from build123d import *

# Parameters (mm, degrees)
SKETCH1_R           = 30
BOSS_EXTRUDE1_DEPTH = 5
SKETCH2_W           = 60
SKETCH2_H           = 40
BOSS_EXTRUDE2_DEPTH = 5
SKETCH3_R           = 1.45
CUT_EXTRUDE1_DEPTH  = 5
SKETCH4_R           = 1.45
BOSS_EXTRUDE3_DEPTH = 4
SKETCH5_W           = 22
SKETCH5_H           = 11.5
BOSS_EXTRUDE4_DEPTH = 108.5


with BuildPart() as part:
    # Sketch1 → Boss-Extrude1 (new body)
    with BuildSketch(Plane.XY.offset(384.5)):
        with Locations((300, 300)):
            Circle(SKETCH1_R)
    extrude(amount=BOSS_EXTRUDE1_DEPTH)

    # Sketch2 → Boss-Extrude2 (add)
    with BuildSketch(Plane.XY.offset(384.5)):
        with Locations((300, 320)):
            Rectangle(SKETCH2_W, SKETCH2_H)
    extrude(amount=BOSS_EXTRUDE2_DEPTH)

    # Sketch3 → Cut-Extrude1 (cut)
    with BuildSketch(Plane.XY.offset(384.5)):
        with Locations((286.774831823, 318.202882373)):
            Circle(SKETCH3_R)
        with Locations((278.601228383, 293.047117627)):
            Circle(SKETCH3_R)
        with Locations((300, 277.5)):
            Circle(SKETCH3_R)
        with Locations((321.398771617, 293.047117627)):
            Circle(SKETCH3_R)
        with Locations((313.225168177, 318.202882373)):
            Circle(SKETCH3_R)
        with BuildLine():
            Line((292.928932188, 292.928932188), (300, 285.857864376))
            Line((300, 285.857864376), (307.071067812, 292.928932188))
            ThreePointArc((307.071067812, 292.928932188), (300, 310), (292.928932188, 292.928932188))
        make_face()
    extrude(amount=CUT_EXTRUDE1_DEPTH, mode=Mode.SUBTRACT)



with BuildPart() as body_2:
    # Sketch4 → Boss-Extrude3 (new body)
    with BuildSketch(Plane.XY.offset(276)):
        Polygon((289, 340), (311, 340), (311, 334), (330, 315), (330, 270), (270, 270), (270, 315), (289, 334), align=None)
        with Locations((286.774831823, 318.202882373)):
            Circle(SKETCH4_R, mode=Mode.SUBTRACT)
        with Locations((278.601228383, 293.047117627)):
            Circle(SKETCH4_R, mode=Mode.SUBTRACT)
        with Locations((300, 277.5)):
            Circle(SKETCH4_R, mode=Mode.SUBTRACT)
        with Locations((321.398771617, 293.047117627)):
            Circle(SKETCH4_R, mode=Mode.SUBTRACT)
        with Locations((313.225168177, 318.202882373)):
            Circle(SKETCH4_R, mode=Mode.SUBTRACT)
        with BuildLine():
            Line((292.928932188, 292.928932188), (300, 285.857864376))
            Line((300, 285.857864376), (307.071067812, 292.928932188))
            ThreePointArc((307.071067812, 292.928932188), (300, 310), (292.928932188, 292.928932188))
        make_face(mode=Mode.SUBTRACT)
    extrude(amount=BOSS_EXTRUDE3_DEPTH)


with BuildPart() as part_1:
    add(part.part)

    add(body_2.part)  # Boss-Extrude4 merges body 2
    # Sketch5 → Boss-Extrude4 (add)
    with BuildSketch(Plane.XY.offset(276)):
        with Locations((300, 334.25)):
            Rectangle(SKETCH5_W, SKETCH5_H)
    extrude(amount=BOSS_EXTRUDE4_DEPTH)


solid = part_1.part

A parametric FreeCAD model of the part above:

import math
import FreeCAD as App
import Part
import Sketcher
Q = App.Units.Quantity

doc = App.newDocument("Part")
body = doc.addObject("PartDesign::Body", "Body")

sketch1 = doc.addObject("Sketcher::SketchObject", "Sketch")
body.addObject(sketch1)
sketch1.AttachmentSupport = (doc.XY_Plane, [""])
sketch1.MapMode = "FlatFace"
sketch1.AttachmentOffset = App.Placement(App.Vector(0, 0, 384.5), App.Rotation())
sketch1.addGeometry(Part.Circle(App.Vector(300, 300, 0), App.Vector(0, 0, 1), 30), False)
sketch1.addConstraint(Sketcher.Constraint("Diameter", 0, Q("60 mm")))
sketch1.addConstraint(Sketcher.Constraint("DistanceX", -1, 1, 0, 3, Q("300 mm")))
sketch1.addConstraint(Sketcher.Constraint("DistanceY", -1, 1, 0, 3, Q("300 mm")))
pad1 = doc.addObject("PartDesign::Pad", "Pad")
body.addObject(pad1)
pad1.Profile = sketch1
pad1.Length = 5

sketch2 = doc.addObject("Sketcher::SketchObject", "Sketch001")
body.addObject(sketch2)
sketch2.AttachmentSupport = (doc.XY_Plane, [""])
sketch2.MapMode = "FlatFace"
sketch2.AttachmentOffset = App.Placement(App.Vector(0, 0, 384.5), App.Rotation())
sketch2.addGeometry(Part.LineSegment(App.Vector(270, 340, 0), App.Vector(270, 300, 0)), False)
sketch2.addGeometry(Part.LineSegment(App.Vector(270, 300, 0), App.Vector(330, 300, 0)), False)
sketch2.addGeometry(Part.LineSegment(App.Vector(330, 300, 0), App.Vector(330, 340, 0)), False)
sketch2.addGeometry(Part.LineSegment(App.Vector(330, 340, 0), App.Vector(270, 340, 0)), False)
sketch2.addConstraint(Sketcher.Constraint("Coincident", 0, 2, 1, 1))
sketch2.addConstraint(Sketcher.Constraint("Coincident", 1, 2, 2, 1))
sketch2.addConstraint(Sketcher.Constraint("Coincident", 2, 2, 3, 1))
sketch2.addConstraint(Sketcher.Constraint("Coincident", 3, 2, 0, 1))
sketch2.addConstraint(Sketcher.Constraint("Vertical", 0))
sketch2.addConstraint(Sketcher.Constraint("Horizontal", 1))
sketch2.addConstraint(Sketcher.Constraint("Vertical", 2))
sketch2.addConstraint(Sketcher.Constraint("Horizontal", 3))
sketch2.addConstraint(Sketcher.Constraint("DistanceX", 1, 1, 1, 2, Q("60 mm")))
sketch2.addConstraint(Sketcher.Constraint("DistanceY", 0, 2, 0, 1, Q("40 mm")))
sketch2.addConstraint(Sketcher.Constraint("DistanceX", -1, 1, 0, 2, Q("270 mm")))
sketch2.addConstraint(Sketcher.Constraint("DistanceY", -1, 1, 0, 2, Q("300 mm")))
pad2 = doc.addObject("PartDesign::Pad", "Pad001")
body.addObject(pad2)
pad2.Profile = sketch2
pad2.Length = 5

sketch3 = doc.addObject("Sketcher::SketchObject", "Sketch002")
body.addObject(sketch3)
sketch3.AttachmentSupport = (doc.XY_Plane, [""])
sketch3.MapMode = "FlatFace"
sketch3.AttachmentOffset = App.Placement(App.Vector(0, 0, 384.5), App.Rotation())
sketch3.addGeometry(Part.Circle(App.Vector(286.8, 318.2, 0), App.Vector(0, 0, 1), 1.4), False)
sketch3.addGeometry(Part.Circle(App.Vector(278.6, 293, 0), App.Vector(0, 0, 1), 1.4), False)
sketch3.addGeometry(Part.Circle(App.Vector(300, 277.5, 0), App.Vector(0, 0, 1), 1.4), False)
sketch3.addGeometry(Part.Circle(App.Vector(321.4, 293, 0), App.Vector(0, 0, 1), 1.4), False)
sketch3.addGeometry(Part.Circle(App.Vector(313.2, 318.2, 0), App.Vector(0, 0, 1), 1.4), False)
sketch3.addGeometry(Part.LineSegment(App.Vector(292.9, 292.9, 0), App.Vector(300, 285.9, 0)), False)
sketch3.addGeometry(Part.LineSegment(App.Vector(300, 285.9, 0), App.Vector(307.1, 292.9, 0)), False)
sketch3.addGeometry(Part.ArcOfCircle(Part.Circle(App.Vector(300, 300, 0), App.Vector(0, 0, 1), 10), math.radians(-45), math.radians(225)), False)
sketch3.addConstraint(Sketcher.Constraint("Coincident", 5, 2, 6, 1))
sketch3.addConstraint(Sketcher.Constraint("Tangent", 6, 2, 7, 1))
sketch3.addConstraint(Sketcher.Constraint("Tangent", 7, 2, 5, 1))
sketch3.addConstraint(Sketcher.Constraint("Equal", 0, 1))
sketch3.addConstraint(Sketcher.Constraint("Equal", 1, 2))
sketch3.addConstraint(Sketcher.Constraint("Equal", 2, 3))
sketch3.addConstraint(Sketcher.Constraint("Equal", 3, 4))
sketch3.addConstraint(Sketcher.Constraint("Perpendicular", 5, 6))
sketch3.addConstraint(Sketcher.Constraint("Horizontal", 1, 3, 3, 3))
sketch3.addConstraint(Sketcher.Constraint("Horizontal", 0, 3, 4, 3))
sketch3.addConstraint(Sketcher.Constraint("Horizontal", 6, 2, 7, 2))
sketch3.addConstraint(Sketcher.Constraint("Vertical", 2, 3, 7, 3))
sketch3.addConstraint(Sketcher.Constraint("Radius", 7, Q("10 mm")))
sketch3.addConstraint(Sketcher.Constraint("Diameter", 0, Q("2.9 mm")))
sketch3.addConstraint(Sketcher.Constraint("DistanceX", -1, 1, 2, 3, Q("300 mm")))
sketch3.addConstraint(Sketcher.Constraint("DistanceY", -1, 1, 7, 3, Q("300 mm")))
sketch3.addConstraint(Sketcher.Constraint("DistanceY", -1, 1, 2, 3, Q("277.5 mm")))
sketch3.addConstraint(Sketcher.Constraint("DistanceX", 6, 2, 4, 3, Q("6.1541 mm")))
sketch3.addConstraint(Sketcher.Constraint("DistanceX", -1, 1, 0, 3, Q("286.774832 mm")))
sketch3.addConstraint(Sketcher.Constraint("DistanceX", -1, 1, 1, 3, Q("278.601228 mm")))
sketch3.addConstraint(Sketcher.Constraint("DistanceX", -1, 1, 3, 3, Q("321.398772 mm")))
sketch3.addConstraint(Sketcher.Constraint("DistanceY", 6, 2, 4, 3, Q("25.27395 mm")))
sketch3.addConstraint(Sketcher.Constraint("DistanceY", -1, 1, 1, 3, Q("293.047118 mm")))
pocket1 = doc.addObject("PartDesign::Pocket", "Pocket")
body.addObject(pocket1)
pocket1.Profile = sketch3
pocket1.Length = 5
pocket1.Reversed = True
body2 = doc.addObject("PartDesign::Body", "Body001")

sketch4 = doc.addObject("Sketcher::SketchObject", "Sketch003")
body2.addObject(sketch4)
sketch4.AttachmentSupport = (doc.getObject("XY_Plane001"), [""])
sketch4.MapMode = "FlatFace"
sketch4.AttachmentOffset = App.Placement(App.Vector(0, 0, 276), App.Rotation())
sketch4.addGeometry(Part.LineSegment(App.Vector(311, 340, 0), App.Vector(289, 340, 0)), False)
sketch4.addGeometry(Part.LineSegment(App.Vector(289, 340, 0), App.Vector(289, 334, 0)), False)
sketch4.addGeometry(Part.LineSegment(App.Vector(289, 334, 0), App.Vector(270, 315, 0)), False)
sketch4.addGeometry(Part.LineSegment(App.Vector(270, 315, 0), App.Vector(270, 270, 0)), False)
sketch4.addGeometry(Part.LineSegment(App.Vector(270, 270, 0), App.Vector(330, 270, 0)), False)
sketch4.addGeometry(Part.LineSegment(App.Vector(330, 270, 0), App.Vector(330, 315, 0)), False)
sketch4.addGeometry(Part.LineSegment(App.Vector(330, 315, 0), App.Vector(311, 334, 0)), False)
sketch4.addGeometry(Part.LineSegment(App.Vector(311, 334, 0), App.Vector(311, 340, 0)), False)
sketch4.addGeometry(Part.Circle(App.Vector(300, 277.5, 0), App.Vector(0, 0, 1), 1.4), False)
sketch4.addGeometry(Part.Circle(App.Vector(321.4, 293, 0), App.Vector(0, 0, 1), 1.4), False)
sketch4.addGeometry(Part.Circle(App.Vector(278.6, 293, 0), App.Vector(0, 0, 1), 1.4), False)
sketch4.addGeometry(Part.ArcOfCircle(Part.Circle(App.Vector(300, 300, 0), App.Vector(0, 0, 1), 10), math.radians(-45), math.radians(225)), False)
sketch4.addGeometry(Part.LineSegment(App.Vector(307.1, 292.9, 0), App.Vector(300, 285.9, 0)), False)
sketch4.addGeometry(Part.LineSegment(App.Vector(300, 285.9, 0), App.Vector(292.9, 292.9, 0)), False)
sketch4.addGeometry(Part.Circle(App.Vector(313.2, 318.2, 0), App.Vector(0, 0, 1), 1.4), False)
sketch4.addGeometry(Part.Circle(App.Vector(286.8, 318.2, 0), App.Vector(0, 0, 1), 1.4), False)
sketch4.addConstraint(Sketcher.Constraint("Coincident", 0, 2, 1, 1))
sketch4.addConstraint(Sketcher.Constraint("Coincident", 1, 2, 2, 1))
sketch4.addConstraint(Sketcher.Constraint("Coincident", 2, 2, 3, 1))
sketch4.addConstraint(Sketcher.Constraint("Coincident", 3, 2, 4, 1))
sketch4.addConstraint(Sketcher.Constraint("Coincident", 4, 2, 5, 1))
sketch4.addConstraint(Sketcher.Constraint("Coincident", 5, 2, 6, 1))
sketch4.addConstraint(Sketcher.Constraint("Coincident", 6, 2, 7, 1))
sketch4.addConstraint(Sketcher.Constraint("Coincident", 7, 2, 0, 1))
sketch4.addConstraint(Sketcher.Constraint("Tangent", 11, 1, 12, 1))
sketch4.addConstraint(Sketcher.Constraint("Coincident", 12, 2, 13, 1))
sketch4.addConstraint(Sketcher.Constraint("Tangent", 13, 2, 11, 2))
sketch4.addConstraint(Sketcher.Constraint("Horizontal", 0))
sketch4.addConstraint(Sketcher.Constraint("Vertical", 1))
sketch4.addConstraint(Sketcher.Constraint("Vertical", 3))
sketch4.addConstraint(Sketcher.Constraint("Horizontal", 4))
sketch4.addConstraint(Sketcher.Constraint("Vertical", 5))
sketch4.addConstraint(Sketcher.Constraint("Vertical", 7))
sketch4.addConstraint(Sketcher.Constraint("Equal", 8, 9))
sketch4.addConstraint(Sketcher.Constraint("Equal", 9, 10))
sketch4.addConstraint(Sketcher.Constraint("Equal", 10, 14))
sketch4.addConstraint(Sketcher.Constraint("Equal", 14, 15))
sketch4.addConstraint(Sketcher.Constraint("Perpendicular", 2, 6))
sketch4.addConstraint(Sketcher.Constraint("Perpendicular", 6, 12))
sketch4.addConstraint(Sketcher.Constraint("Perpendicular", 12, 13))
sketch4.addConstraint(Sketcher.Constraint("Horizontal", 9, 3, 10, 3))
sketch4.addConstraint(Sketcher.Constraint("Horizontal", 14, 3, 15, 3))
sketch4.addConstraint(Sketcher.Constraint("Horizontal", 2, 2, 5, 2))
sketch4.addConstraint(Sketcher.Constraint("Horizontal", 1, 2, 6, 2))
sketch4.addConstraint(Sketcher.Constraint("Horizontal", 11, 1, 13, 2))
sketch4.addConstraint(Sketcher.Constraint("Vertical", 8, 3, 11, 3))
sketch4.addConstraint(Sketcher.Constraint("Radius", 11, Q("10 mm")))
sketch4.addConstraint(Sketcher.Constraint("Diameter", 8, Q("2.9 mm")))
sketch4.addConstraint(Sketcher.Constraint("DistanceX", 0, 2, 0, 1, Q("22 mm")))
sketch4.addConstraint(Sketcher.Constraint("DistanceX", 4, 1, 4, 2, Q("60 mm")))
sketch4.addConstraint(Sketcher.Constraint("DistanceY", 1, 2, 1, 1, Q("6 mm")))
sketch4.addConstraint(Sketcher.Constraint("DistanceY", 3, 2, 3, 1, Q("45 mm")))
sketch4.addConstraint(Sketcher.Constraint("DistanceX", -1, 1, 8, 3, Q("300 mm")))
sketch4.addConstraint(Sketcher.Constraint("DistanceY", -1, 1, 11, 3, Q("300 mm")))
sketch4.addConstraint(Sketcher.Constraint("DistanceX", -1, 1, 0, 2, Q("289 mm")))
sketch4.addConstraint(Sketcher.Constraint("DistanceY", -1, 1, 0, 2, Q("340 mm")))
sketch4.addConstraint(Sketcher.Constraint("DistanceY", -1, 1, 8, 3, Q("277.5 mm")))
sketch4.addConstraint(Sketcher.Constraint("DistanceX", 11, 1, 14, 3, Q("6.1541 mm")))
sketch4.addConstraint(Sketcher.Constraint("DistanceX", -1, 1, 9, 3, Q("321.398772 mm")))
sketch4.addConstraint(Sketcher.Constraint("DistanceX", -1, 1, 10, 3, Q("278.601228 mm")))
sketch4.addConstraint(Sketcher.Constraint("DistanceX", -1, 1, 15, 3, Q("286.774832 mm")))
sketch4.addConstraint(Sketcher.Constraint("DistanceY", 11, 1, 14, 3, Q("25.27395 mm")))
sketch4.addConstraint(Sketcher.Constraint("DistanceY", -1, 1, 9, 3, Q("293.047118 mm")))
pad3 = doc.addObject("PartDesign::Pad", "Pad002")
body2.addObject(pad3)
pad3.Profile = sketch4
pad3.Length = 4
body.AllowCompound = True
doc.recompute()

boolean = doc.addObject("PartDesign::Boolean", "Boolean")
body.addObject(boolean)
boolean.Type = "Fuse"
boolean.addObjects([body2])

sketch5 = doc.addObject("Sketcher::SketchObject", "Sketch004")
body.addObject(sketch5)
sketch5.AttachmentSupport = (doc.XY_Plane, [""])
sketch5.MapMode = "FlatFace"
sketch5.AttachmentOffset = App.Placement(App.Vector(0, 0, 276), App.Rotation())
sketch5.addGeometry(Part.LineSegment(App.Vector(289, 340, 0), App.Vector(289, 328, 0)), False)
sketch5.addGeometry(Part.LineSegment(App.Vector(289, 328, 0), App.Vector(311, 328, 0)), False)
sketch5.addGeometry(Part.LineSegment(App.Vector(311, 328, 0), App.Vector(311, 340, 0)), False)
sketch5.addGeometry(Part.LineSegment(App.Vector(311, 340, 0), App.Vector(289, 340, 0)), False)
sketch5.addConstraint(Sketcher.Constraint("Coincident", 0, 2, 1, 1))
sketch5.addConstraint(Sketcher.Constraint("Coincident", 1, 2, 2, 1))
sketch5.addConstraint(Sketcher.Constraint("Coincident", 2, 2, 3, 1))
sketch5.addConstraint(Sketcher.Constraint("Coincident", 3, 2, 0, 1))
sketch5.addConstraint(Sketcher.Constraint("Vertical", 0))
sketch5.addConstraint(Sketcher.Constraint("Horizontal", 1))
sketch5.addConstraint(Sketcher.Constraint("Vertical", 2))
sketch5.addConstraint(Sketcher.Constraint("Horizontal", 3))
sketch5.addConstraint(Sketcher.Constraint("DistanceX", 1, 1, 1, 2, Q("22 mm")))
sketch5.addConstraint(Sketcher.Constraint("DistanceY", 0, 2, 0, 1, Q("11.5 mm")))
sketch5.addConstraint(Sketcher.Constraint("DistanceX", -1, 1, 0, 2, Q("289 mm")))
sketch5.addConstraint(Sketcher.Constraint("DistanceY", -1, 1, 2, 2, Q("340 mm")))
pad4 = doc.addObject("PartDesign::Pad", "Pad003")
body.addObject(pad4)
pad4.Profile = sketch5
pad4.Length = 108.5

doc.recompute()
